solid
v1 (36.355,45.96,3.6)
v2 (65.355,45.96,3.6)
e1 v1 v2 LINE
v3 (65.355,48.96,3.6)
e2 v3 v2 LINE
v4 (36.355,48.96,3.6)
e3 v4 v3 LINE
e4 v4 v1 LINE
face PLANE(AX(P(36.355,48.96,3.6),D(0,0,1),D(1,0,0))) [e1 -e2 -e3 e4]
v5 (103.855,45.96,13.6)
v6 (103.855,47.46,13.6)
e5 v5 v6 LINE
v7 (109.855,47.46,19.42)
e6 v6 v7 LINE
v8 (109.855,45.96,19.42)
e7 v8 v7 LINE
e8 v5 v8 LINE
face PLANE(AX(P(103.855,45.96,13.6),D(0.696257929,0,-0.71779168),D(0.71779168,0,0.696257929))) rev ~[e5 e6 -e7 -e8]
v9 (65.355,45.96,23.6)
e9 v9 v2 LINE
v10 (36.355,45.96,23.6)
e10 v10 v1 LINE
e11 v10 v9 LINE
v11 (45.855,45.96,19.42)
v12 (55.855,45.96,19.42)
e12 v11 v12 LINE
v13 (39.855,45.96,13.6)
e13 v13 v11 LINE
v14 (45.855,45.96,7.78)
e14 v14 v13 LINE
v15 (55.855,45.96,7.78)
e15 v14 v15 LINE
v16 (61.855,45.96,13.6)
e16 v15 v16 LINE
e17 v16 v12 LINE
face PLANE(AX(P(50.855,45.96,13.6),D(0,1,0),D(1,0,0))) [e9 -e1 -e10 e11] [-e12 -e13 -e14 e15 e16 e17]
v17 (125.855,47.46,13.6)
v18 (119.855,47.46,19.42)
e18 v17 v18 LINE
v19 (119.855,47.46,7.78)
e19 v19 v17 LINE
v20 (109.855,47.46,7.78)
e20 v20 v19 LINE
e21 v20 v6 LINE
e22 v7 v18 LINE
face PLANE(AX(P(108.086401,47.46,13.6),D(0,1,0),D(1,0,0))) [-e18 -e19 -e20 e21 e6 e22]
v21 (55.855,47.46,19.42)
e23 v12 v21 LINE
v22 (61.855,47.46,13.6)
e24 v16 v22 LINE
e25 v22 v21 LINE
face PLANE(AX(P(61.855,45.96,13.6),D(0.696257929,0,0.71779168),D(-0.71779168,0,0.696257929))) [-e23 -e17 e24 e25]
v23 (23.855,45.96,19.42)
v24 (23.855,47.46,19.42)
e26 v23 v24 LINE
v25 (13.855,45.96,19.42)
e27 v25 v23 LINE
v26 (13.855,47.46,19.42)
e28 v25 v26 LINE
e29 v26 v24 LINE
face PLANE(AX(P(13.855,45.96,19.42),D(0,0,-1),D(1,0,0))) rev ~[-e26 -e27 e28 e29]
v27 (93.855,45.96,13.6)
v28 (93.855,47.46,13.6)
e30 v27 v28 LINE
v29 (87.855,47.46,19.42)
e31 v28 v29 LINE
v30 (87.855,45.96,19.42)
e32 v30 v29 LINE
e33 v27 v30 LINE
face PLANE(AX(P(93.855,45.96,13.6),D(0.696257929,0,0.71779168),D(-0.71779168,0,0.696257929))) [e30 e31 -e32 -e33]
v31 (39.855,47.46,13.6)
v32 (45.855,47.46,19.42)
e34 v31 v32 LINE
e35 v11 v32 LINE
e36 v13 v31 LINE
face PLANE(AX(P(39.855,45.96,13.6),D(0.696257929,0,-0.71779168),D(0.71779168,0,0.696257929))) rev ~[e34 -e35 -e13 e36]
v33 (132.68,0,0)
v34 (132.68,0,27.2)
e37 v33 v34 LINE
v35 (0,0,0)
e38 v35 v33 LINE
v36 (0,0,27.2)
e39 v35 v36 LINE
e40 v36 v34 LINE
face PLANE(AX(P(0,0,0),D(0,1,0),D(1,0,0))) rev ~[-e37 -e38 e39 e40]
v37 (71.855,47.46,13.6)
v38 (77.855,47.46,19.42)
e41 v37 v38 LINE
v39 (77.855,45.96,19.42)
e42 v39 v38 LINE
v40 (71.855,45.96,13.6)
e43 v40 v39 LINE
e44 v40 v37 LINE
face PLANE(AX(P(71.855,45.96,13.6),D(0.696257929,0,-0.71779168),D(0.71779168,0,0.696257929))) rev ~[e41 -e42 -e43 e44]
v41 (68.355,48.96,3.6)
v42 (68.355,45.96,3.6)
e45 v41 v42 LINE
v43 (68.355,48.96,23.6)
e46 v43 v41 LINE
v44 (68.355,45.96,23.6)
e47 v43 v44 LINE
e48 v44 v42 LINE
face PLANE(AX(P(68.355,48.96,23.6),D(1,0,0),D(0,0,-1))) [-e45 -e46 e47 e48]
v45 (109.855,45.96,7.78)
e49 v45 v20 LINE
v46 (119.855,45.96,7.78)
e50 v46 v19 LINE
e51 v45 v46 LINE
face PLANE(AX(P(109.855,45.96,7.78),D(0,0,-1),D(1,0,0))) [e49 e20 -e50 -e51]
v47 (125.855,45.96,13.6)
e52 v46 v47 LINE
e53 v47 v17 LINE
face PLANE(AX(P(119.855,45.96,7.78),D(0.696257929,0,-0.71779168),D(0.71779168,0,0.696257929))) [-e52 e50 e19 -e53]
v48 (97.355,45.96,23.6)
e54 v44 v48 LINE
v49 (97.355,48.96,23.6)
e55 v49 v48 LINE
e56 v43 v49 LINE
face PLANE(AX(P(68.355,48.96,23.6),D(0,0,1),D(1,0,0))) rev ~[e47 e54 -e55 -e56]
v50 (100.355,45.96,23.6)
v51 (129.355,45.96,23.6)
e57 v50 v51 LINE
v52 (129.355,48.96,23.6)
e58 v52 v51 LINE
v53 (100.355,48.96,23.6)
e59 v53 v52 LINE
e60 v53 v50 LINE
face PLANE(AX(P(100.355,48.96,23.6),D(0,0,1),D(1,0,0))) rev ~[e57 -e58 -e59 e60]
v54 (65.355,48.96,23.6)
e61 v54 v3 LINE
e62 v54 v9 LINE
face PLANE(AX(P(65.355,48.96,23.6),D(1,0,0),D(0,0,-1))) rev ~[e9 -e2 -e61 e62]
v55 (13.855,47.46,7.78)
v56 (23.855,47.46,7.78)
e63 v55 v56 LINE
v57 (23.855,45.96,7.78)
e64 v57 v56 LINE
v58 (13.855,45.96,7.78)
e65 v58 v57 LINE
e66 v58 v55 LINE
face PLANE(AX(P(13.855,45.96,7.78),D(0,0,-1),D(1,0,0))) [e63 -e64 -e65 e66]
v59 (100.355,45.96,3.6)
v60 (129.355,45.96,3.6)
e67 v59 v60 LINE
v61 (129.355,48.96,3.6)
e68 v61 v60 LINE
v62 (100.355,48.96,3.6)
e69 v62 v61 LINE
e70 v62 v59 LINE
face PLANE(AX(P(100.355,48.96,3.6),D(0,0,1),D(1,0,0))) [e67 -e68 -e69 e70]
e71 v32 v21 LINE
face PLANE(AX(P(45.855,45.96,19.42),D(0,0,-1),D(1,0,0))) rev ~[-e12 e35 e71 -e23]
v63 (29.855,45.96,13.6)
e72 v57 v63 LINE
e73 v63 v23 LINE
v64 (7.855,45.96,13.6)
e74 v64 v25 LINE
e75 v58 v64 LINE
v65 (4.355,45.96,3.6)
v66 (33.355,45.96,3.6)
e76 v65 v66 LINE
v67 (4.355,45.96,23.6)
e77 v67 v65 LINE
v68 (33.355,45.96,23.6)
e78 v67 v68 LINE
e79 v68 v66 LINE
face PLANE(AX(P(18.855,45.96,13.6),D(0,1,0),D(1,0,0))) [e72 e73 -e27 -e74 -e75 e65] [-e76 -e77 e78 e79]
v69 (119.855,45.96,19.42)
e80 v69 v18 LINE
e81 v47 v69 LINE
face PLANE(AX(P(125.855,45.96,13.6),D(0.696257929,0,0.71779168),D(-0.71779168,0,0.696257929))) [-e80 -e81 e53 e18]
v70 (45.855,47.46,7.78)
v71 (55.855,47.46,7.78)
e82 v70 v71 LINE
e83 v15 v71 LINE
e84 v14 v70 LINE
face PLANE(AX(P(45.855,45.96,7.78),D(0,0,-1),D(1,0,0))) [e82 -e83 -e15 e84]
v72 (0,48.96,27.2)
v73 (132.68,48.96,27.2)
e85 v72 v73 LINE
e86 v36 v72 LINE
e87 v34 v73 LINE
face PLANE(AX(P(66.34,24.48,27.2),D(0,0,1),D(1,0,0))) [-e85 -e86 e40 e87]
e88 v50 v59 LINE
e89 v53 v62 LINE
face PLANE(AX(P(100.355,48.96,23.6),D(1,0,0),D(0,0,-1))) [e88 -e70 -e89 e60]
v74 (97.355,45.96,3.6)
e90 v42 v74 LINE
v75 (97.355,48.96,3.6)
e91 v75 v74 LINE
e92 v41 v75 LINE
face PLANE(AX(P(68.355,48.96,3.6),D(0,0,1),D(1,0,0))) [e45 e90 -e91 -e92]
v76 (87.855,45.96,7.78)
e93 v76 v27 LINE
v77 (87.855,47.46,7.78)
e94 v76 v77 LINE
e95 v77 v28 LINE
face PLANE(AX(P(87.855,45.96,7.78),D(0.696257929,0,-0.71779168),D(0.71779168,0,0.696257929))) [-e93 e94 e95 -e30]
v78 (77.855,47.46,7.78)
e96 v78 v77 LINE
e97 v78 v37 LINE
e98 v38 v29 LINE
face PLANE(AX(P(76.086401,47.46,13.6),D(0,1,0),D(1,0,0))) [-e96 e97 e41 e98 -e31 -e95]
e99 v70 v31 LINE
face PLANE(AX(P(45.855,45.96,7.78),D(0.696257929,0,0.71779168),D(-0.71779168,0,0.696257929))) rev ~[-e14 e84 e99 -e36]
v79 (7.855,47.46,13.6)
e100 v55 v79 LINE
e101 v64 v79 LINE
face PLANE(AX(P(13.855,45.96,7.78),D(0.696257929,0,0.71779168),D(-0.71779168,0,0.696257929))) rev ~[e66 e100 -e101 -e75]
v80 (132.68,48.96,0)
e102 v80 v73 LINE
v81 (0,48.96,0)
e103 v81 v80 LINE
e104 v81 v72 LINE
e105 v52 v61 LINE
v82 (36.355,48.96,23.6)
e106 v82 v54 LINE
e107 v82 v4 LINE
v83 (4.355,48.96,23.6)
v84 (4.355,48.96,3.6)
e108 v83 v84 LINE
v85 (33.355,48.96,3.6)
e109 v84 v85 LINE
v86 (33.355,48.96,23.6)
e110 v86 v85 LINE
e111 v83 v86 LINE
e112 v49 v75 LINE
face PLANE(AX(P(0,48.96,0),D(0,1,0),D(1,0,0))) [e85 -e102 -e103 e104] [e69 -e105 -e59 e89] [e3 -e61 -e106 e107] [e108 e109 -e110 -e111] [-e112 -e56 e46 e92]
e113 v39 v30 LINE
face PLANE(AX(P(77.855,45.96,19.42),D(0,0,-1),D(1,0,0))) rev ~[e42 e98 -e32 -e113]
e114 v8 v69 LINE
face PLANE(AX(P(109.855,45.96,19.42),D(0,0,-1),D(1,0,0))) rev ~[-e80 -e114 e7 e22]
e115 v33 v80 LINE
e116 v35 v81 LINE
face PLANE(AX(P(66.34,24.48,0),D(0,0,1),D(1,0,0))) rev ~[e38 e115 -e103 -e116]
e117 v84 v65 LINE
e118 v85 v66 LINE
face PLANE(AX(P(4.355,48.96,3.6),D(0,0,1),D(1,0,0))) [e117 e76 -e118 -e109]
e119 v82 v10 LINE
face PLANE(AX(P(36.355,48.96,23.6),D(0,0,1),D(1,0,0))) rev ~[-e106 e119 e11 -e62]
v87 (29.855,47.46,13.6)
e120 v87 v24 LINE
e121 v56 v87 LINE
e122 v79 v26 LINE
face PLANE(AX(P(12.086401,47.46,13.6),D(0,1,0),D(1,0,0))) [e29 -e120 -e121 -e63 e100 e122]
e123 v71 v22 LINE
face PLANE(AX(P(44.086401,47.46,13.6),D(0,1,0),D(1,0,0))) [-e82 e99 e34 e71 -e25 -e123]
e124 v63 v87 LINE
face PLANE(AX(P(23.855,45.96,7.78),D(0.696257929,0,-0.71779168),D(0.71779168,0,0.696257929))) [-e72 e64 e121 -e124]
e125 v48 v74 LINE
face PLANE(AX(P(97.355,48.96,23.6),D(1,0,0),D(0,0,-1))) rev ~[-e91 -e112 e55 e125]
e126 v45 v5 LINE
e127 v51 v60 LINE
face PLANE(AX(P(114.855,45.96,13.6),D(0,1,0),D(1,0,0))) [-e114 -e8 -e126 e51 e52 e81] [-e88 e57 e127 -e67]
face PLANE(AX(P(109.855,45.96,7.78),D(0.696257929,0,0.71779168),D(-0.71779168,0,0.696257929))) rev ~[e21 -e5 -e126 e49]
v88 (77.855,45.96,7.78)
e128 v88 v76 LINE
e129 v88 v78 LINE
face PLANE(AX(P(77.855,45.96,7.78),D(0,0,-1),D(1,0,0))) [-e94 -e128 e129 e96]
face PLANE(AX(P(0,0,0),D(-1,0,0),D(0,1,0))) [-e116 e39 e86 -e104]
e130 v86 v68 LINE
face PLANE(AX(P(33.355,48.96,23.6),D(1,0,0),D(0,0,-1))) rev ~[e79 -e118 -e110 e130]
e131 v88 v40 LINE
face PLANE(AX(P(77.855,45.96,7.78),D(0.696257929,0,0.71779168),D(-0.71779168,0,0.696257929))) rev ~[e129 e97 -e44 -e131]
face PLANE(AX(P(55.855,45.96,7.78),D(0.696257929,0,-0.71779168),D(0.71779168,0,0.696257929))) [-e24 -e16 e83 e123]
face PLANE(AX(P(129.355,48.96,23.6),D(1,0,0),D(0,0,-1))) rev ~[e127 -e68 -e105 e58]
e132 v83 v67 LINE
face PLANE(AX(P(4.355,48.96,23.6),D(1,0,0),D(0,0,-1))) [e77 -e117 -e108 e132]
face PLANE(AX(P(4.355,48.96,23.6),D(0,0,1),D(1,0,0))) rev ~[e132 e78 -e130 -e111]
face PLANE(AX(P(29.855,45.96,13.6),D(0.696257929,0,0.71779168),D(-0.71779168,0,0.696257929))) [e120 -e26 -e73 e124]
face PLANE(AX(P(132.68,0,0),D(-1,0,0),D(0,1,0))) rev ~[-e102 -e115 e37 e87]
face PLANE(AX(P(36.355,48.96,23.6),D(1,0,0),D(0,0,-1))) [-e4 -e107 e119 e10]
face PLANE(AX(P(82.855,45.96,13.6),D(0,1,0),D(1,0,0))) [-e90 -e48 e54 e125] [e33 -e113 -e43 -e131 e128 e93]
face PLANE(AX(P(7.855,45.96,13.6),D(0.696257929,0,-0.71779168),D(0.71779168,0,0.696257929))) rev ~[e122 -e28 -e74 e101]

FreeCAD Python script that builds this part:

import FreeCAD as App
import Part
import Sketcher
from FreeCAD import Vector

doc = App.newDocument("Part")
body = doc.addObject("PartDesign::Body", "Body")

# Sketch on XY plane
sketch1 = doc.addObject("Sketcher::SketchObject", "Sketch")
body.addObject(sketch1)
sketch1.AttachmentSupport = (doc.XY_Plane, [""])
sketch1.MapMode = "FlatFace"
sketch1.addGeometry([
    Part.LineSegment(Vector(0, 49, 0), Vector(0, 0, 0)),
    Part.LineSegment(Vector(0, 0, 0), Vector(133, 0, 0)),
    Part.LineSegment(Vector(133, 0, 0), Vector(133, 49, 0)),
    Part.LineSegment(Vector(133, 49, 0), Vector(0, 49, 0)),
], False)
sketch1.addConstraint([
    Sketcher.Constraint("Coincident", 0, 2, 1, 1),
    Sketcher.Constraint("Coincident", 1, 2, 2, 1),
    Sketcher.Constraint("Coincident", 2, 2, 3, 1),
    Sketcher.Constraint("Coincident", 3, 2, 0, 1),
    Sketcher.Constraint("Vertical", 0),
    Sketcher.Constraint("Horizontal", 1),
    Sketcher.Constraint("Vertical", 2),
    Sketcher.Constraint("Horizontal", 3),
    Sketcher.Constraint("Coincident", 0, 2, -1, 1),
    Sketcher.Constraint("DistanceX", 1, 1, 1, 2, 132.68),
    Sketcher.Constraint("DistanceY", 0, 2, 0, 1, 48.96),
])
pad1 = doc.addObject("PartDesign::Pad", "Pad")
body.addObject(pad1)
pad1.Profile = sketch1
pad1.Length = 27.2

# Sketch on XZ plane
sketch2 = doc.addObject("Sketcher::SketchObject", "Sketch001")
body.addObject(sketch2)
sketch2.AttachmentSupport = (doc.XZ_Plane, [""])
sketch2.MapMode = "FlatFace"
sketch2.AttachmentOffset = App.Placement(Vector(0, 0, -48.96), App.Rotation())
sketch2.addGeometry([
    Part.LineSegment(Vector(4, 4, 0), Vector(4, 24, 0)),
    Part.LineSegment(Vector(4, 24, 0), Vector(33, 24, 0)),
    Part.LineSegment(Vector(33, 24, 0), Vector(33, 4, 0)),
    Part.LineSegment(Vector(33, 4, 0), Vector(4, 4, 0)),
], False)
sketch2.addConstraint([
    Sketcher.Constraint("Coincident", 0, 2, 1, 1),
    Sketcher.Constraint("Coincident", 1, 2, 2, 1),
    Sketcher.Constraint("Coincident", 2, 2, 3, 1),
    Sketcher.Constraint("Coincident", 3, 2, 0, 1),
    Sketcher.Constraint("Vertical", 0),
    Sketcher.Constraint("Horizontal", 1),
    Sketcher.Constraint("Vertical", 2),
    Sketcher.Constraint("Horizontal", 3),
    Sketcher.Constraint("DistanceX", 1, 1, 1, 2, 29.0),
    Sketcher.Constraint("DistanceY", 0, 1, 0, 2, 20.0),
    Sketcher.Constraint("DistanceY", -1, 1, 0, 2, 23.6),
    Sketcher.Constraint("DistanceX", -1, 1, 0, 2, 4.355),
])
pocket1 = doc.addObject("PartDesign::Pocket", "Pocket")
body.addObject(pocket1)
pocket1.Profile = sketch2
pocket1.Length = 3
pocket1.Reversed = True

# Sketch on XZ plane
sketch3 = doc.addObject("Sketcher::SketchObject", "Sketch002")
body.addObject(sketch3)
sketch3.AttachmentSupport = (doc.XZ_Plane, [""])
sketch3.MapMode = "FlatFace"
sketch3.AttachmentOffset = App.Placement(Vector(0, 0, -45.96), App.Rotation())
sketch3.addGeometry([
    Part.LineSegment(Vector(14, 8, 0), Vector(8, 14, 0)),  # 0
    Part.LineSegment(Vector(8, 14, 0), Vector(14, 19, 0)),  # 1
    Part.LineSegment(Vector(14, 19, 0), Vector(24, 19, 0)),  # 2
    Part.LineSegment(Vector(24, 19, 0), Vector(30, 14, 0)),  # 3
    Part.LineSegment(Vector(30, 14, 0), Vector(24, 8, 0)),  # 4
    Part.LineSegment(Vector(24, 8, 0), Vector(14, 8, 0)),  # 5
], False)
sketch3.addConstraint([
    Sketcher.Constraint("Coincident", 0, 2, 1, 1),
    Sketcher.Constraint("Coincident", 1, 2, 2, 1),
    Sketcher.Constraint("Coincident", 2, 2, 3, 1),
    Sketcher.Constraint("Coincident", 3, 2, 4, 1),
    Sketcher.Constraint("Coincident", 4, 2, 5, 1),
    Sketcher.Constraint("Coincident", 5, 2, 0, 1),
    Sketcher.Constraint("Horizontal", 2),
    Sketcher.Constraint("Horizontal", 5),
    Sketcher.Constraint("Parallel", 0, 3),
    Sketcher.Constraint("Parallel", 1, 4),
    Sketcher.Constraint("Horizontal", 0, 2, 3, 2),
    Sketcher.Constraint("Vertical", 2, 2, 4, 2),
    Sketcher.Constraint("Vertical", 1, 2, 5, 2),
    Sketcher.Constraint("DistanceX", 2, 1, 2, 2, 10.0),
    Sketcher.Constraint("DistanceX", 0, 2, 1, 2, 6.0),
    Sketcher.Constraint("DistanceY", -1, 1, 0, 2, 13.6),
    Sketcher.Constraint("DistanceY", -1, 1, 1, 2, 19.42),
    Sketcher.Constraint("DistanceX", -1, 1, 0, 2, 7.855),
])
pad2 = doc.addObject("PartDesign::Pad", "Pad001")
body.addObject(pad2)
pad2.Profile = sketch3
pad2.Length = 1.5
pad2.Reversed = True
doc.recompute()

linearpattern = doc.addObject("PartDesign::LinearPattern", "LinearPattern")
body.addObject(linearpattern)
linearpattern.Originals = [pocket1, pad2]
linearpattern.Direction = (doc.X_Axis, [""])
linearpattern.Mode = "offset"
linearpattern.Offset = 32
linearpattern.Occurrences = 4
body.Tip = linearpattern

doc.recompute()
